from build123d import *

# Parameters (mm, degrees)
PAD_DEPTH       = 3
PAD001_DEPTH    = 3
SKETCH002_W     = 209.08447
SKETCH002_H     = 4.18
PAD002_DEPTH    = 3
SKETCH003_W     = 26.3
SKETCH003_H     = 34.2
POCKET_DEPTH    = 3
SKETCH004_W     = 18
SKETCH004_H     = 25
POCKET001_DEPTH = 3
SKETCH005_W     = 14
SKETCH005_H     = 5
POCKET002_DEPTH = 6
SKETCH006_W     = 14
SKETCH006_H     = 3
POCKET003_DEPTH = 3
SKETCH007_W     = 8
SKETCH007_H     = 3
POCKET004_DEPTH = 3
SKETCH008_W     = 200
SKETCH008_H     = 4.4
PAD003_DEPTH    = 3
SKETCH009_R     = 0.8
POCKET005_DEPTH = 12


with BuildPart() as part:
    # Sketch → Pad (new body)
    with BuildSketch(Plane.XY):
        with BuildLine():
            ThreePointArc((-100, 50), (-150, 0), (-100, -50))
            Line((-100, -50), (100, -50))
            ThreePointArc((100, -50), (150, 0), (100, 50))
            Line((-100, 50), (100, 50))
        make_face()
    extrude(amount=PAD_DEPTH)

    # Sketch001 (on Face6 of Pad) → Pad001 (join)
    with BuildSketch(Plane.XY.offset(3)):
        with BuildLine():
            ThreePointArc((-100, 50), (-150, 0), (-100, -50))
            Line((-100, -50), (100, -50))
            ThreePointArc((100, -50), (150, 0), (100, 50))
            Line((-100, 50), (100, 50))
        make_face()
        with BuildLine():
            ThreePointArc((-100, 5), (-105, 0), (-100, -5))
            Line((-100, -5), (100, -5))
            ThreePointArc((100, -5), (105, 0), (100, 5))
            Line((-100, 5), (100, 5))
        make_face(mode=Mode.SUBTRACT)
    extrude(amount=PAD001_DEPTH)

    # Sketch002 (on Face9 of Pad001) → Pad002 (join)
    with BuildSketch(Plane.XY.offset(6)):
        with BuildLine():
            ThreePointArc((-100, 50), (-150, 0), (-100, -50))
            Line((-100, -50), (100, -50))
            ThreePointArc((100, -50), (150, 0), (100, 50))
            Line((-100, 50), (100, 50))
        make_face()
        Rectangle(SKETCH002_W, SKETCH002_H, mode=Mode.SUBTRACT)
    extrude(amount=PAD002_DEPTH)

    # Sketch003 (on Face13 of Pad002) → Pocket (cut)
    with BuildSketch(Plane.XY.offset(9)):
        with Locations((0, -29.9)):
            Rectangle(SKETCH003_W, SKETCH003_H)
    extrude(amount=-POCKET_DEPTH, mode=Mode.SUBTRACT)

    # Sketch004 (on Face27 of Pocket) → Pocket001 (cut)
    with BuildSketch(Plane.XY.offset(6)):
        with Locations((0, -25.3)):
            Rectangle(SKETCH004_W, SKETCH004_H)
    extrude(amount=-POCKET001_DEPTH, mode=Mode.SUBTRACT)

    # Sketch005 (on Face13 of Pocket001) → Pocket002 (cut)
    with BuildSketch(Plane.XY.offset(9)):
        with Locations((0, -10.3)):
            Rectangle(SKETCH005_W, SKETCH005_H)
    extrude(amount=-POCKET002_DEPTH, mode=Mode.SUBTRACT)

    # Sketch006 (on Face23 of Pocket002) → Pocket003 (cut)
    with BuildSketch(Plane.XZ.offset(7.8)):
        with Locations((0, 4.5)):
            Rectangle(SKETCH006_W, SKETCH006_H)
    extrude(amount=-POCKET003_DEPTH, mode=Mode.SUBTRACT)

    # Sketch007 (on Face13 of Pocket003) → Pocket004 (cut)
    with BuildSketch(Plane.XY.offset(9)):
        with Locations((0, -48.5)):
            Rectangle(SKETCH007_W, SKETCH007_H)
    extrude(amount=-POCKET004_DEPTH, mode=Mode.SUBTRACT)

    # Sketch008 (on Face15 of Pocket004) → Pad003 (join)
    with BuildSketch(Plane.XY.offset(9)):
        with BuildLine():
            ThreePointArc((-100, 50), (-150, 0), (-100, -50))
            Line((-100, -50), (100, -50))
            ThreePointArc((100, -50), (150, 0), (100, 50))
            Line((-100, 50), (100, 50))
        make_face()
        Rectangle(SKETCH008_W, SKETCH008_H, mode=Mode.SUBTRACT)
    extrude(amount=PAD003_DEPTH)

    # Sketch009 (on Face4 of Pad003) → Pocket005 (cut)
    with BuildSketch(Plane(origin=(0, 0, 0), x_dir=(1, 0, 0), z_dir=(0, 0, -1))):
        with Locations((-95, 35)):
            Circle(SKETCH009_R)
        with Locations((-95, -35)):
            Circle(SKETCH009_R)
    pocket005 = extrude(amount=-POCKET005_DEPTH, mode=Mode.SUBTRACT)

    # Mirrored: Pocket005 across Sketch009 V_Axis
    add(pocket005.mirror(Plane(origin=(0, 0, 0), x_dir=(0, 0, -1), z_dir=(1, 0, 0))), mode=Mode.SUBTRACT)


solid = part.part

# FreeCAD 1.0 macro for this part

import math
import FreeCAD as App
import Part
import Sketcher

V = App.Vector

doc = App.newDocument("Part")
body = doc.addObject("PartDesign::Body", "Body")

# Sketch on XY plane
sketch1 = body.newObject("Sketcher::SketchObject", "Sketch")
sketch1.AttachmentSupport = (doc.getObject("XY_Plane"), [""])
sketch1.MapMode = "FlatFace"
sketch1.addGeometry([
    Part.ArcOfCircle(Part.Circle(V(-100, 0, 0), V(0, 0, 1), 50), math.radians(90), math.radians(270)),
    Part.LineSegment(V(-100, -50, 0), V(100, -50, 0)),
    Part.ArcOfCircle(Part.Circle(V(100, 0, 0), V(0, 0, 1), 50), math.radians(-90), math.radians(90)),
    Part.LineSegment(V(100, 50, 0), V(-100, 50, 0)),
], False)
sketch1.addConstraint([
    Sketcher.Constraint("Tangent", 0, 2, 1, 1),
    Sketcher.Constraint("Tangent", 1, 2, 2, 1),
    Sketcher.Constraint("Tangent", 2, 2, 3, 1),
    Sketcher.Constraint("Tangent", 3, 2, 0, 1),
    Sketcher.Constraint("Horizontal", 1),
    Sketcher.Constraint("Horizontal", 3),
    Sketcher.Constraint("Symmetric", 0, 3, 2, 3, -1, 1),
    Sketcher.Constraint("Radius", 0, 50.0),
    Sketcher.Constraint("DistanceX", 1, 1, 1, 2, 200.0),
])
pad1 = body.newObject("PartDesign::Pad", "Pad")
pad1.Profile = sketch1
pad1.Length = 3

# Sketch on XY plane
sketch2 = body.newObject("Sketcher::SketchObject", "Sketch001")
sketch2.AttachmentSupport = (doc.getObject("XY_Plane"), [""])
sketch2.MapMode = "FlatFace"
sketch2.AttachmentOffset = App.Placement(V(0, 0, 3), App.Rotation())
sketch2.addGeometry([
    Part.ArcOfCircle(Part.Circle(V(-100, 0, 0), V(0, 0, 1), 50), math.radians(90), math.radians(270)),  # 0
    Part.LineSegment(V(-100, -50, 0), V(100, -50, 0)),  # 1
    Part.ArcOfCircle(Part.Circle(V(100, 0, 0), V(0, 0, 1), 50), math.radians(-90), math.radians(90)),  # 2
    Part.LineSegment(V(100, 50, 0), V(-100, 50, 0)),  # 3
    Part.ArcOfCircle(Part.Circle(V(-100, 0, 0), V(0, 0, 1), 5), math.radians(90), math.radians(270)),  # 4
    Part.LineSegment(V(-100, 5, 0), V(100, 5, 0)),  # 5
    Part.ArcOfCircle(Part.Circle(V(100, 0, 0), V(0, 0, 1), 5), math.radians(-90), math.radians(90)),  # 6
    Part.LineSegment(V(100, -5, 0), V(-100, -5, 0)),  # 7
], False)
sketch2.addConstraint([
    Sketcher.Constraint("Tangent", 0, 2, 1, 1),
    Sketcher.Constraint("Tangent", 1, 2, 2, 1),
    Sketcher.Constraint("Tangent", 2, 2, 3, 1),
    Sketcher.Constraint("Tangent", 3, 2, 0, 1),
    Sketcher.Constraint("Tangent", 4, 1, 5, 1),
    Sketcher.Constraint("Tangent", 5, 2, 6, 2),
    Sketcher.Constraint("Tangent", 6, 1, 7, 1),
    Sketcher.Constraint("Tangent", 7, 2, 4, 2),
    Sketcher.Constraint("Horizontal", 1),
    Sketcher.Constraint("Horizontal", 3),
    Sketcher.Constraint("Horizontal", 5),
    Sketcher.Constraint("Horizontal", 7),
    Sketcher.Constraint("Coincident", 4, 3, 0, 3),
    Sketcher.Constraint("Symmetric", 0, 3, 2, 3, -1, 1),
    Sketcher.Constraint("Vertical", 6, 3, 1, 2),
    Sketcher.Constraint("Radius", 0, 50.0),
    Sketcher.Constraint("Radius", 4, 5.0),
    Sketcher.Constraint("DistanceX", 1, 1, 1, 2, 200.0),
])
pad2 = body.newObject("PartDesign::Pad", "Pad001")
pad2.Profile = sketch2
pad2.Length = 3

# Sketch on XY plane
sketch3 = body.newObject("Sketcher::SketchObject", "Sketch002")
sketch3.AttachmentSupport = (doc.getObject("XY_Plane"), [""])
sketch3.MapMode = "FlatFace"
sketch3.AttachmentOffset = App.Placement(V(0, 0, 6), App.Rotation())
sketch3.addGeometry([
    Part.ArcOfCircle(Part.Circle(V(-100, 0, 0), V(0, 0, 1), 50), math.radians(90), math.radians(270)),  # 0
    Part.LineSegment(V(-100, -50, 0), V(100, -50, 0)),  # 1
    Part.ArcOfCircle(Part.Circle(V(100, 0, 0), V(0, 0, 1), 50), math.radians(-90), math.radians(90)),  # 2
    Part.LineSegment(V(100, 50, 0), V(-100, 50, 0)),  # 3
    Part.LineSegment(V(104.542235, -2.09, 0), V(-104.542235, -2.09, 0)),  # 4
    Part.LineSegment(V(-104.542235, -2.09, 0), V(-104.542235, 2.09, 0)),  # 5
    Part.LineSegment(V(-104.542235, 2.09, 0), V(104.542235, 2.09, 0)),  # 6
    Part.LineSegment(V(104.542235, 2.09, 0), V(104.542235, -2.09, 0)),  # 7
], False)
sketch3.addConstraint([
    Sketcher.Constraint("Tangent", 0, 2, 1, 1),
    Sketcher.Constraint("Tangent", 1, 2, 2, 1),
    Sketcher.Constraint("Tangent", 2, 2, 3, 1),
    Sketcher.Constraint("Tangent", 3, 2, 0, 1),
    Sketcher.Constraint("Coincident", 4, 2, 5, 1),
    Sketcher.Constraint("Coincident", 5, 2, 6, 1),
    Sketcher.Constraint("Coincident", 6, 2, 7, 1),
    Sketcher.Constraint("Coincident", 7, 2, 4, 1),
    Sketcher.Constraint("Horizontal", 1),
    Sketcher.Constraint("Horizontal", 3),
    Sketcher.Constraint("Horizontal", 4),
    Sketcher.Constraint("Vertical", 5),
    Sketcher.Constraint("Horizontal", 6),
    Sketcher.Constraint("Vertical", 7),
    Sketcher.Constraint("Symmetric", 0, 3, 2, 3, -1, 1),
    Sketcher.Constraint("Symmetric", 4, 2, 6, 2, -1, 1),
    Sketcher.Constraint("Radius", 0, 50.0),
    Sketcher.Constraint("DistanceX", 1, 1, 1, 2, 200.0),
    Sketcher.Constraint("DistanceY", 5, 1, 5, 2, 4.18),
    Sketcher.Constraint("DistanceX", 4, 2, 4, 1, 209.08447),
])
pad3 = body.newObject("PartDesign::Pad", "Pad002")
pad3.Profile = sketch3
pad3.Length = 3

# Sketch on XY plane
sketch4 = body.newObject("Sketcher::SketchObject", "Sketch003")
sketch4.AttachmentSupport = (doc.getObject("XY_Plane"), [""])
sketch4.MapMode = "FlatFace"
sketch4.AttachmentOffset = App.Placement(V(0, 0, 9), App.Rotation())
sketch4.addGeometry([
    Part.LineSegment(V(-13.15, -12.8, 0), V(-13.15, -47, 0)),
    Part.LineSegment(V(-13.15, -47, 0), V(13.15, -47, 0)),
    Part.LineSegment(V(13.15, -47, 0), V(13.15, -12.8, 0)),
    Part.LineSegment(V(13.15, -12.8, 0), V(-13.15, -12.8, 0)),
], False)
sketch4.addConstraint([
    Sketcher.Constraint("Coincident", 0, 2, 1, 1),
    Sketcher.Constraint("Coincident", 1, 2, 2, 1),
    Sketcher.Constraint("Coincident", 2, 2, 3, 1),
    Sketcher.Constraint("Coincident", 3, 2, 0, 1),
    Sketcher.Constraint("Vertical", 0),
    Sketcher.Constraint("Horizontal", 1),
    Sketcher.Constraint("Vertical", 2),
    Sketcher.Constraint("Horizontal", 3),
    Sketcher.Constraint("DistanceX", 1, 1, 1, 2, 26.3),
    Sketcher.Constraint("DistanceY", 0, 2, 0, 1, 34.2),
    Sketcher.Constraint("DistanceY", 0, 2, -1, 1, 47.0),
    Sketcher.Constraint("DistanceX", 0, 2, -1, 1, 13.15),
])
pocket1 = body.newObject("PartDesign::Pocket", "Pocket")
pocket1.Profile = sketch4
pocket1.Length = 3

# Sketch on XY plane
sketch5 = body.newObject("Sketcher::SketchObject", "Sketch004")
sketch5.AttachmentSupport = (doc.getObject("XY_Plane"), [""])
sketch5.MapMode = "FlatFace"
sketch5.AttachmentOffset = App.Placement(V(0, 0, 6), App.Rotation())
sketch5.addGeometry([
    Part.LineSegment(V(-9, -12.8, 0), V(-9, -37.8, 0)),
    Part.LineSegment(V(-9, -37.8, 0), V(9, -37.8, 0)),
    Part.LineSegment(V(9, -37.8, 0), V(9, -12.8, 0)),
    Part.LineSegment(V(9, -12.8, 0), V(-9, -12.8, 0)),
], False)
sketch5.addConstraint([
    Sketcher.Constraint("Coincident", 0, 2, 1, 1),
    Sketcher.Constraint("Coincident", 1, 2, 2, 1),
    Sketcher.Constraint("Coincident", 2, 2, 3, 1),
    Sketcher.Constraint("Coincident", 3, 2, 0, 1),
    Sketcher.Constraint("Vertical", 0),
    Sketcher.Constraint("Horizontal", 1),
    Sketcher.Constraint("Vertical", 2),
    Sketcher.Constraint("Horizontal", 3),
    Sketcher.Constraint("DistanceX", 1, 1, 1, 2, 18.0),
    Sketcher.Constraint("DistanceY", 0, 2, 0, 1, 25.0),
    Sketcher.Constraint("DistanceX", 0, 2, -1, 1, 9.0),
    Sketcher.Constraint("DistanceY", 0, 2, -1, 1, 37.8),
])
pocket2 = body.newObject("PartDesign::Pocket", "Pocket001")
pocket2.Profile = sketch5
pocket2.Length = 3

# Sketch on XY plane
sketch6 = body.newObject("Sketcher::SketchObject", "Sketch005")
sketch6.AttachmentSupport = (doc.getObject("XY_Plane"), [""])
sketch6.MapMode = "FlatFace"
sketch6.AttachmentOffset = App.Placement(V(0, 0, 9), App.Rotation())
sketch6.addGeometry([
    Part.LineSegment(V(-7, -7.8, 0), V(-7, -12.8, 0)),
    Part.LineSegment(V(-7, -12.8, 0), V(7, -12.8, 0)),
    Part.LineSegment(V(7, -12.8, 0), V(7, -7.8, 0)),
    Part.LineSegment(V(7, -7.8, 0), V(-7, -7.8, 0)),
], False)
sketch6.addConstraint([
    Sketcher.Constraint("Coincident", 0, 2, 1, 1),
    Sketcher.Constraint("Coincident", 1, 2, 2, 1),
    Sketcher.Constraint("Coincident", 2, 2, 3, 1),
    Sketcher.Constraint("Coincident", 3, 2, 0, 1),
    Sketcher.Constraint("Vertical", 0),
    Sketcher.Constraint("Horizontal", 1),
    Sketcher.Constraint("Vertical", 2),
    Sketcher.Constraint("Horizontal", 3),
    Sketcher.Constraint("DistanceX", 1, 1, 1, 2, 14.0),
    Sketcher.Constraint("DistanceY", 0, 2, 0, 1, 5.0),
    Sketcher.Constraint("DistanceX", 0, 2, -1, 1, 7.0),
    Sketcher.Constraint("DistanceY", 0, 2, -1, 1, 12.8),
])
pocket3 = body.newObject("PartDesign::Pocket", "Pocket002")
pocket3.Profile = sketch6
pocket3.Length = 6

# Sketch on XZ plane
sketch7 = body.newObject("Sketcher::SketchObject", "Sketch006")
sketch7.AttachmentSupport = (doc.getObject("XZ_Plane"), [""])
sketch7.MapMode = "FlatFace"
sketch7.AttachmentOffset = App.Placement(V(0, 0, 7.8), App.Rotation())
sketch7.addGeometry([
    Part.LineSegment(V(-7, 6, 0), V(-7, 3, 0)),
    Part.LineSegment(V(-7, 3, 0), V(7, 3, 0)),
    Part.LineSegment(V(7, 3, 0), V(7, 6, 0)),
    Part.LineSegment(V(7, 6, 0), V(-7, 6, 0)),
], False)
sketch7.addConstraint([
    Sketcher.Constraint("Coincident", 0, 2, 1, 1),
    Sketcher.Constraint("Coincident", 1, 2, 2, 1),
    Sketcher.Constraint("Coincident", 2, 2, 3, 1),
    Sketcher.Constraint("Coincident", 3, 2, 0, 1),
    Sketcher.Constraint("Vertical", 0),
    Sketcher.Constraint("Horizontal", 1),
    Sketcher.Constraint("Vertical", 2),
    Sketcher.Constraint("Horizontal", 3),
    Sketcher.Constraint("DistanceX", 1, 1, 1, 2, 14.0),
    Sketcher.Constraint("DistanceY", 0, 2, 0, 1, 3.0),
    Sketcher.Constraint("DistanceX", 0, 2, -1, 1, 7.0),
    Sketcher.Constraint("DistanceY", -1, 1, 0, 2, 3.0),
])
pocket4 = body.newObject("PartDesign::Pocket", "Pocket003")
pocket4.Profile = sketch7
pocket4.Length = 3

# Sketch on XY plane
sketch8 = body.newObject("Sketcher::SketchObject", "Sketch007")
sketch8.AttachmentSupport = (doc.getObject("XY_Plane"), [""])
sketch8.MapMode = "FlatFace"
sketch8.AttachmentOffset = App.Placement(V(0, 0, 9), App.Rotation())
sketch8.addGeometry([
    Part.LineSegment(V(-4, -47, 0), V(-4, -50, 0)),
    Part.LineSegment(V(-4, -50, 0), V(4, -50, 0)),
    Part.LineSegment(V(4, -50, 0), V(4, -47, 0)),
    Part.LineSegment(V(4, -47, 0), V(-4, -47, 0)),
], False)
sketch8.addConstraint([
    Sketcher.Constraint("Coincident", 0, 2, 1, 1),
    Sketcher.Constraint("Coincident", 1, 2, 2, 1),
    Sketcher.Constraint("Coincident", 2, 2, 3, 1),
    Sketcher.Constraint("Coincident", 3, 2, 0, 1),
    Sketcher.Constraint("Vertical", 0),
    Sketcher.Constraint("Horizontal", 1),
    Sketcher.Constraint("Vertical", 2),
    Sketcher.Constraint("Horizontal", 3),
    Sketcher.Constraint("DistanceX", 1, 1, 1, 2, 8.0),
    Sketcher.Constraint("DistanceY", 0, 2, 0, 1, 3.0),
    Sketcher.Constraint("DistanceX", 0, 2, -1, 1, 4.0),
    Sketcher.Constraint("DistanceY", 0, 2, -1, 1, 50.0),
])
pocket5 = body.newObject("PartDesign::Pocket", "Pocket004")
pocket5.Profile = sketch8
pocket5.Length = 3

# Sketch on XY plane
sketch9 = body.newObject("Sketcher::SketchObject", "Sketch008")
sketch9.AttachmentSupport = (doc.getObject("XY_Plane"), [""])
sketch9.MapMode = "FlatFace"
sketch9.AttachmentOffset = App.Placement(V(0, 0, 9), App.Rotation())
sketch9.addGeometry([
    Part.ArcOfCircle(Part.Circle(V(-100, 0, 0), V(0, 0, 1), 50), math.radians(90), math.radians(270)),  # 0
    Part.LineSegment(V(-100, -50, 0), V(100, -50, 0)),  # 1
    Part.ArcOfCircle(Part.Circle(V(100, 0, 0), V(0, 0, 1), 50), math.radians(-90), math.radians(90)),  # 2
    Part.LineSegment(V(100, 50, 0), V(-100, 50, 0)),  # 3
    Part.LineSegment(V(100, -2.2, 0), V(-100, -2.2, 0)),  # 4
    Part.LineSegment(V(-100, -2.2, 0), V(-100, 2.2, 0)),  # 5
    Part.LineSegment(V(-100, 2.2, 0), V(100, 2.2, 0)),  # 6
    Part.LineSegment(V(100, 2.2, 0), V(100, -2.2, 0)),  # 7
], False)
sketch9.addConstraint([
    Sketcher.Constraint("Tangent", 0, 2, 1, 1),
    Sketcher.Constraint("Tangent", 1, 2, 2, 1),
    Sketcher.Constraint("Tangent", 2, 2, 3, 1),
    Sketcher.Constraint("Tangent", 3, 2, 0, 1),
    Sketcher.Constraint("Coincident", 4, 2, 5, 1),
    Sketcher.Constraint("Coincident", 5, 2, 6, 1),
    Sketcher.Constraint("Coincident", 6, 2, 7, 1),
    Sketcher.Constraint("Coincident", 7, 2, 4, 1),
    Sketcher.Constraint("Horizontal", 1),
    Sketcher.Constraint("Horizontal", 3),
    Sketcher.Constraint("Horizontal", 4),
    Sketcher.Constraint("Vertical", 5),
    Sketcher.Constraint("Horizontal", 6),
    Sketcher.Constraint("Vertical", 7),
    Sketcher.Constraint("Symmetric", 0, 3, 2, 3, -1, 1),
    Sketcher.Constraint("Symmetric", 4, 2, 6, 2, -1, 1),
    Sketcher.Constraint("Vertical", 3, 2, 4, 2),
    Sketcher.Constraint("Radius", 0, 50.0),
    Sketcher.Constraint("DistanceX", 1, 1, 1, 2, 200.0),
    Sketcher.Constraint("DistanceY", 5, 1, 5, 2, 4.4),
])
pad4 = body.newObject("PartDesign::Pad", "Pad003")
pad4.Profile = sketch9
pad4.Length = 3

# Sketch on XY plane
sketch10 = body.newObject("Sketcher::SketchObject", "Sketch009")
sketch10.AttachmentSupport = (doc.getObject("XY_Plane"), [""])
sketch10.MapMode = "FlatFace"
sketch10.addGeometry([
    Part.Circle(V(-95, -35, 0), V(0, 0, 1), 0.8),
    Part.Circle(V(-95, 35, 0), V(0, 0, 1), 0.8),
], False)
sketch10.addConstraint([
    Sketcher.Constraint("Equal", 0, 1),
    Sketcher.Constraint("Symmetric", 0, 3, 1, 3, -1),
    Sketcher.Constraint("Diameter", 0, 1.6),
    Sketcher.Constraint("DistanceX", 0, 3, -1, 1, 95.0),
    Sketcher.Constraint("DistanceY", 0, 3, -1, 1, 35.0),
])
pocket6 = body.newObject("PartDesign::Pocket", "Pocket005")
pocket6.Profile = sketch10
pocket6.Length = 12
pocket6.Reversed = True
doc.recompute()

mirrored = body.newObject("PartDesign::Mirrored", "Mirrored")
mirrored.Originals = [pocket6]
mirrored.MirrorPlane = (doc.getObject("YZ_Plane"), [""])
body.Tip = mirrored

doc.recompute()
